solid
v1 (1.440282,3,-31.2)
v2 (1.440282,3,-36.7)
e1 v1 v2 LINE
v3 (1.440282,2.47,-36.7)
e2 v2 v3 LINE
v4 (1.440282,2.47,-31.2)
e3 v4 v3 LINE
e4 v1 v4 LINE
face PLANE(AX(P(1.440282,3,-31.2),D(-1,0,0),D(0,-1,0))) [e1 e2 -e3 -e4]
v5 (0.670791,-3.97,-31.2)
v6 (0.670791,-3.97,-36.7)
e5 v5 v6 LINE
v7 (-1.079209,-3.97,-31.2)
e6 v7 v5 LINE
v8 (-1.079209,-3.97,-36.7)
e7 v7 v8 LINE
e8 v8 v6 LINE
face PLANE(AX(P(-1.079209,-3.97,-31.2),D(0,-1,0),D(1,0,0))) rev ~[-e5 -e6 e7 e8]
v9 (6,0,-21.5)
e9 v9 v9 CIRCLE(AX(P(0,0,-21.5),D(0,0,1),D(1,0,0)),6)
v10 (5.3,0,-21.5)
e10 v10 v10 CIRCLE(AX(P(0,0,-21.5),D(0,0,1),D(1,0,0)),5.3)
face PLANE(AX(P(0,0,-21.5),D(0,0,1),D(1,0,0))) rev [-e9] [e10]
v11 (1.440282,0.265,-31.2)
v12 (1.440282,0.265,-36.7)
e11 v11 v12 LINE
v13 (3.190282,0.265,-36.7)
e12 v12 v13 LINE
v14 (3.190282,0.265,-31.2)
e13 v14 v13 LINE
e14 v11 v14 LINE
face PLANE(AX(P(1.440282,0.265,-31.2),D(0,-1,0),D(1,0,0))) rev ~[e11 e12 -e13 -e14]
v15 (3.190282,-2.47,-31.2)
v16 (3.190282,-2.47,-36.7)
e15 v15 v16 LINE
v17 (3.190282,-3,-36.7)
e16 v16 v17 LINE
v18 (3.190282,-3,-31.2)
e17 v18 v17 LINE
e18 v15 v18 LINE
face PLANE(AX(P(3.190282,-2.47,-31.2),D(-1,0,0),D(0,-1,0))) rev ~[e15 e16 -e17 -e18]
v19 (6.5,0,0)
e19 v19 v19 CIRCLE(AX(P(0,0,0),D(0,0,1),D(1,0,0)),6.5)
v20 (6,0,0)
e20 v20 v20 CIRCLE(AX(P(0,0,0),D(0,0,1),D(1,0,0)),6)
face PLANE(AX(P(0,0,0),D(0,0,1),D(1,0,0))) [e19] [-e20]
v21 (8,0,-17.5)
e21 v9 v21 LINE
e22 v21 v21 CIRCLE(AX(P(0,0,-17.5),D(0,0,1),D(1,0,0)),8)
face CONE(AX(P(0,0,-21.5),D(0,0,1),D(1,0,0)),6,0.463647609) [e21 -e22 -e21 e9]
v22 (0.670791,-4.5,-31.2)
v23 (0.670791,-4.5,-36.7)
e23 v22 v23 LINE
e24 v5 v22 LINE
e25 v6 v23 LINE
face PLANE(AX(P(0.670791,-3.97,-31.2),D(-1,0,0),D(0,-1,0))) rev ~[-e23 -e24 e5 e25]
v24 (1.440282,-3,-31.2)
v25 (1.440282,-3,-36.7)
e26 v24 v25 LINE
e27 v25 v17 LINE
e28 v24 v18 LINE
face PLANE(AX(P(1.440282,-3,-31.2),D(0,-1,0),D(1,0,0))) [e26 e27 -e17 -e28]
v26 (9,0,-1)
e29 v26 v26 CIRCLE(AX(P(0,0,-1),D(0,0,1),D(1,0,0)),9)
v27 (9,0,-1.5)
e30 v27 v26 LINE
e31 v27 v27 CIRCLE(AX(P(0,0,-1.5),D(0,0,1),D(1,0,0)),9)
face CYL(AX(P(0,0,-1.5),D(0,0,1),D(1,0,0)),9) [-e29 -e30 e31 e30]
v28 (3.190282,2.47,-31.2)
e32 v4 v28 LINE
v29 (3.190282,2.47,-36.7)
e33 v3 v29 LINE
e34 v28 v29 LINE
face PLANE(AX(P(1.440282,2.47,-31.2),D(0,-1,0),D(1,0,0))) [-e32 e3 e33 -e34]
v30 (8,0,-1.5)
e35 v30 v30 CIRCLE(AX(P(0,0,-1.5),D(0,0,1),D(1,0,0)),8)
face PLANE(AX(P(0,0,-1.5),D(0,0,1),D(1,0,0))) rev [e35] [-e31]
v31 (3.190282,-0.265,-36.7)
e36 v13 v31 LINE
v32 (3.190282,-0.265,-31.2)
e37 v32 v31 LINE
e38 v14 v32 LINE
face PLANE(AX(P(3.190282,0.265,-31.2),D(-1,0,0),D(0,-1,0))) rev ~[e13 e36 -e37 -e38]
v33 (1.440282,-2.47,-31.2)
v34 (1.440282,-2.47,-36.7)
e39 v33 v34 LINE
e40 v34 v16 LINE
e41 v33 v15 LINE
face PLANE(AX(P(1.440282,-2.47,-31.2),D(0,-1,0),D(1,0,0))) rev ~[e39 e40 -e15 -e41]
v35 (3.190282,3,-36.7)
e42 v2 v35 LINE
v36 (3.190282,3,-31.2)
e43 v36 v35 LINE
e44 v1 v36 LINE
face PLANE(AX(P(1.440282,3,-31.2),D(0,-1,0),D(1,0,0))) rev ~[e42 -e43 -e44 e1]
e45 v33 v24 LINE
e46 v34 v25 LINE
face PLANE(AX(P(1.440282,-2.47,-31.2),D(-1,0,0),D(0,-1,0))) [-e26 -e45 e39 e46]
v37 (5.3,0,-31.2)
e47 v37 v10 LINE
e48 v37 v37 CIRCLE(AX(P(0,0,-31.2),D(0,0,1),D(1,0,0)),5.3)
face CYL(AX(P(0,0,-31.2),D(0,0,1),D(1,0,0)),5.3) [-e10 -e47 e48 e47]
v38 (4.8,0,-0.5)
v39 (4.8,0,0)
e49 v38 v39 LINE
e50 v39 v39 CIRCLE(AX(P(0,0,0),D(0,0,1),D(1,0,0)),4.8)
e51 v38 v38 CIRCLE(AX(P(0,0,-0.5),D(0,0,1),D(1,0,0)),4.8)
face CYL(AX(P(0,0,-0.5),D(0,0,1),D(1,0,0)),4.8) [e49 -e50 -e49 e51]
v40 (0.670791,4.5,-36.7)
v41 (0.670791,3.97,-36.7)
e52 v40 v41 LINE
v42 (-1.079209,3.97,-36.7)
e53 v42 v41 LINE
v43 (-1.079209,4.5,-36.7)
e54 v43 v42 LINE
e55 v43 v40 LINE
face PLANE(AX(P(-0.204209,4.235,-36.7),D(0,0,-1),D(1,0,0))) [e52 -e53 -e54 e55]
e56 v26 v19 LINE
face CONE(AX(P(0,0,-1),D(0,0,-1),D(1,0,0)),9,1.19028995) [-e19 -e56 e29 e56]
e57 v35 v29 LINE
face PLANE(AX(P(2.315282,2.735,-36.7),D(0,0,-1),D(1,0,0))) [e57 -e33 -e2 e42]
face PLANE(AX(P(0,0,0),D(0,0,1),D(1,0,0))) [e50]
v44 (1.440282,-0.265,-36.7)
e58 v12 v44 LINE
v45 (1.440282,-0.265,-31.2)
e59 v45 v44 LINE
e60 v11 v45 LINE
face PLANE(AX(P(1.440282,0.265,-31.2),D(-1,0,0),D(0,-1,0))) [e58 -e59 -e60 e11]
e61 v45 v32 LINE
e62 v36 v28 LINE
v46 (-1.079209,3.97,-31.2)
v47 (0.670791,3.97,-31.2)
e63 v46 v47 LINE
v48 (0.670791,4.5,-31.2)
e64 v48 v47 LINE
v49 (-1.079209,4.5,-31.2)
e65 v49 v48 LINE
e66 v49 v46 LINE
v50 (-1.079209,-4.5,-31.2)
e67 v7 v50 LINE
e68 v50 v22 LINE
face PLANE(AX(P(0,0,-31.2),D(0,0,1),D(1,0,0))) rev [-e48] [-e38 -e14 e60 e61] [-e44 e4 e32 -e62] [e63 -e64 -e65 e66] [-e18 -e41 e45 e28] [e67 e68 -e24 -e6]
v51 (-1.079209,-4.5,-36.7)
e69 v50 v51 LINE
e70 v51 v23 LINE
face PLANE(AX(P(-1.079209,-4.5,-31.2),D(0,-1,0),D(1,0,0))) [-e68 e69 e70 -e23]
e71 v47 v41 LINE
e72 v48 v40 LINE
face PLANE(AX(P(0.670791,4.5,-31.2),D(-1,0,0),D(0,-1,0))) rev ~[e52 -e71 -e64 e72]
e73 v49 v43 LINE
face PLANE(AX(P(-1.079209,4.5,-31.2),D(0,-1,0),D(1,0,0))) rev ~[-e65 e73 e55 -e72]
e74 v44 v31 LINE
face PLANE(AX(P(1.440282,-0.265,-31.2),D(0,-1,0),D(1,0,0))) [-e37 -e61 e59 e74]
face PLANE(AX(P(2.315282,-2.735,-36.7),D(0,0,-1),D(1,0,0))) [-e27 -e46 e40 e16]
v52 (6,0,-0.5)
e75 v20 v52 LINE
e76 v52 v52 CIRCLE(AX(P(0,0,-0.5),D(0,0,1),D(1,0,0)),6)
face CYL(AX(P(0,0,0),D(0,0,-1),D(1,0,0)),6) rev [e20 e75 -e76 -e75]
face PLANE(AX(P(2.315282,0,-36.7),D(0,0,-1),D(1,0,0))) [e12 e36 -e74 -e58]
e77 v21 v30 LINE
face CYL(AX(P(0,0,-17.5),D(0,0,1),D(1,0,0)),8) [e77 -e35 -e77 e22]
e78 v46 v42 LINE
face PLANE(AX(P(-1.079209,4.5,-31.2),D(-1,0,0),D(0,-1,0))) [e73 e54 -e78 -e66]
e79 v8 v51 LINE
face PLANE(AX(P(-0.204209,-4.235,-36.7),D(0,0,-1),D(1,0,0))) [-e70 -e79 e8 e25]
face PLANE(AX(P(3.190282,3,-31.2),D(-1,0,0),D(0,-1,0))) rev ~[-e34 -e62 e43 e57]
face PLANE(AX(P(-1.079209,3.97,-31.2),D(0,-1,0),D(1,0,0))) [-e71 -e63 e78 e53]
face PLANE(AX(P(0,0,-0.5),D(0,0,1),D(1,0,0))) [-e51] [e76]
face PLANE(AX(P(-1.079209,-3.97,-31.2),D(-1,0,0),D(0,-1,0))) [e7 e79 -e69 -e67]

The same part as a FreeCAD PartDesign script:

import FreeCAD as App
import Part
import Sketcher
from FreeCAD import Vector
Q = App.Units.Quantity


def add_polygon(sketch, points):
    """Adds a closed chain of lines whose ends are joined by coincident constraints."""
    first, n = sketch.GeometryCount, len(points)
    for a, b in zip(points, points[1:] + points[:1]):
        sketch.addGeometry(Part.LineSegment(App.Vector(*a, 0), App.Vector(*b, 0)), False)
    for i in range(n):
        sketch.addConstraint(Sketcher.Constraint("Coincident", first + i, 2, first + (i + 1) % n, 1))

doc = App.newDocument("Part")
body = doc.addObject("PartDesign::Body", "Body")

sketch1 = doc.addObject("Sketcher::SketchObject", "Sketch")
body.addObject(sketch1)
sketch1.AttachmentSupport = (doc.XZ_Plane, [""])
sketch1.MapMode = "FlatFace"
add_polygon(sketch1, [(4.8, 0), (0, 0), (0, -31.2), (5.3, -31.2), (5.3, -21.5), (6, -21.5), (8, -17.5), (8, -1.5), (9, -1.5), (9, -1), (6.5, 0), (6, 0), (6, -0.5), (4.8, -0.5)])
sketch1.addConstraint([
    Sketcher.Constraint("Horizontal", 0),
    Sketcher.Constraint("Vertical", 1),
    Sketcher.Constraint("Horizontal", 2),
    Sketcher.Constraint("Vertical", 3),
    Sketcher.Constraint("Horizontal", 4),
    Sketcher.Constraint("Vertical", 6),
    Sketcher.Constraint("Horizontal", 7),
    Sketcher.Constraint("Vertical", 8),
    Sketcher.Constraint("Horizontal", 10),
    Sketcher.Constraint("Vertical", 11),
    Sketcher.Constraint("Horizontal", 12),
    Sketcher.Constraint("Vertical", 13),
    Sketcher.Constraint("Coincident", 0, 2, -1, 1),
    Sketcher.Constraint("PointOnObject", 9, 2, -1),
    Sketcher.Constraint("Vertical", 4, 2, 10, 2),
    Sketcher.Constraint("Equal", 10, 8),
    Sketcher.Constraint("Equal", 8, 11),
    Sketcher.Constraint("DistanceX", 7, 1, 7, 2, Q("1 mm")),
    Sketcher.Constraint("DistanceY", 6, 1, 6, 2, Q("16 mm")),
    Sketcher.Constraint("DistanceX", 0, 2, 0, 1, Q("4.8 mm")),
    Sketcher.Constraint("DistanceX", 2, 1, 2, 2, Q("5.3 mm")),
    Sketcher.Constraint("DistanceX", 4, 1, 4, 2, Q("0.7 mm")),
    Sketcher.Constraint("DistanceX", 10, 2, 10, 1, Q("0.5 mm")),
    Sketcher.Constraint("DistanceY", 1, 2, 1, 1, Q("31.2 mm")),
    Sketcher.Constraint("DistanceY", 3, 1, 3, 2, Q("9.7 mm")),
    Sketcher.Constraint("DistanceX", -1, 1, 5, 2, Q("8 mm")),
    Sketcher.Constraint("DistanceY", 8, 2, -1, 1, Q("1 mm")),
])
revolution = doc.addObject("PartDesign::Revolution", "Revolution")
body.addObject(revolution)
revolution.Profile = sketch1
revolution.ReferenceAxis = (sketch1, ["V_Axis"])
revolution.Angle = 360

sketch2 = doc.addObject("Sketcher::SketchObject", "Sketch001")
body.addObject(sketch2)
sketch2.AttachmentSupport = (doc.XY_Plane, [""])
sketch2.MapMode = "FlatFace"
sketch2.AttachmentOffset = App.Placement(Vector(0, 0, -31.2), App.Rotation())
add_polygon(sketch2, [(-1.1, 4), (-1.1, 4.5), (0.7, 4.5), (0.7, 4)])
add_polygon(sketch2, [(1.4, 2.5), (1.4, 3), (3.2, 3), (3.2, 2.5)])
add_polygon(sketch2, [(1.4, -0.3), (1.4, 0.3), (3.2, 0.3), (3.2, -0.3)])
add_polygon(sketch2, [(1.4, -3), (1.4, -2.5), (3.2, -2.5), (3.2, -3)])
add_polygon(sketch2, [(-1.1, -4.5), (-1.1, -4), (0.7, -4), (0.7, -4.5)])
sketch2.addConstraint([
    Sketcher.Constraint("Vertical", 0),
    Sketcher.Constraint("Horizontal", 1),
    Sketcher.Constraint("Vertical", 2),
    Sketcher.Constraint("Horizontal", 3),
    Sketcher.Constraint("Vertical", 4),
    Sketcher.Constraint("Horizontal", 5),
    Sketcher.Constraint("Vertical", 6),
    Sketcher.Constraint("Horizontal", 7),
    Sketcher.Constraint("Vertical", 8),
    Sketcher.Constraint("Horizontal", 9),
    Sketcher.Constraint("Vertical", 10),
    Sketcher.Constraint("Horizontal", 11),
    Sketcher.Constraint("Vertical", 12),
    Sketcher.Constraint("Horizontal", 13),
    Sketcher.Constraint("Vertical", 14),
    Sketcher.Constraint("Horizontal", 15),
    Sketcher.Constraint("Vertical", 16),
    Sketcher.Constraint("Horizontal", 17),
    Sketcher.Constraint("Vertical", 18),
    Sketcher.Constraint("Horizontal", 19),
    Sketcher.Constraint("Symmetric", 7, 2, 12, 2, -1),
    Sketcher.Constraint("Symmetric", 5, 2, 14, 2, -1),
    Sketcher.Constraint("Symmetric", 3, 2, 16, 2, -1),
    Sketcher.Constraint("Symmetric", 1, 2, 18, 2, -1),
    Sketcher.Constraint("Vertical", 7, 2, 8, 2),
    Sketcher.Constraint("Vertical", 6, 2, 9, 2),
    Sketcher.Constraint("Equal", 3, 5),
    Sketcher.Constraint("Equal", 2, 4),
    Sketcher.Constraint("Equal", 6, 8),
    Sketcher.Constraint("DistanceY", -1, 1, 4, 2, Q("3 mm")),
    Sketcher.Constraint("DistanceX", 1, 1, 1, 2, Q("1.75 mm")),
    Sketcher.Constraint("DistanceY", 0, 1, 0, 2, Q("0.53 mm")),
    Sketcher.Constraint("DistanceY", -1, 1, 0, 2, Q("4.5 mm")),
    Sketcher.Constraint("DistanceY", -1, 1, 8, 2, Q("0.265 mm")),
    Sketcher.Constraint("DistanceX", 0, 2, -1, 1, Q("1.079209 mm")),
    Sketcher.Constraint("DistanceX", -1, 1, 5, 2, Q("3.190282 mm")),
])
pad1 = doc.addObject("PartDesign::Pad", "Pad")
body.addObject(pad1)
pad1.Profile = sketch2
pad1.Length = 5.5
pad1.Reversed = True

doc.recompute()
